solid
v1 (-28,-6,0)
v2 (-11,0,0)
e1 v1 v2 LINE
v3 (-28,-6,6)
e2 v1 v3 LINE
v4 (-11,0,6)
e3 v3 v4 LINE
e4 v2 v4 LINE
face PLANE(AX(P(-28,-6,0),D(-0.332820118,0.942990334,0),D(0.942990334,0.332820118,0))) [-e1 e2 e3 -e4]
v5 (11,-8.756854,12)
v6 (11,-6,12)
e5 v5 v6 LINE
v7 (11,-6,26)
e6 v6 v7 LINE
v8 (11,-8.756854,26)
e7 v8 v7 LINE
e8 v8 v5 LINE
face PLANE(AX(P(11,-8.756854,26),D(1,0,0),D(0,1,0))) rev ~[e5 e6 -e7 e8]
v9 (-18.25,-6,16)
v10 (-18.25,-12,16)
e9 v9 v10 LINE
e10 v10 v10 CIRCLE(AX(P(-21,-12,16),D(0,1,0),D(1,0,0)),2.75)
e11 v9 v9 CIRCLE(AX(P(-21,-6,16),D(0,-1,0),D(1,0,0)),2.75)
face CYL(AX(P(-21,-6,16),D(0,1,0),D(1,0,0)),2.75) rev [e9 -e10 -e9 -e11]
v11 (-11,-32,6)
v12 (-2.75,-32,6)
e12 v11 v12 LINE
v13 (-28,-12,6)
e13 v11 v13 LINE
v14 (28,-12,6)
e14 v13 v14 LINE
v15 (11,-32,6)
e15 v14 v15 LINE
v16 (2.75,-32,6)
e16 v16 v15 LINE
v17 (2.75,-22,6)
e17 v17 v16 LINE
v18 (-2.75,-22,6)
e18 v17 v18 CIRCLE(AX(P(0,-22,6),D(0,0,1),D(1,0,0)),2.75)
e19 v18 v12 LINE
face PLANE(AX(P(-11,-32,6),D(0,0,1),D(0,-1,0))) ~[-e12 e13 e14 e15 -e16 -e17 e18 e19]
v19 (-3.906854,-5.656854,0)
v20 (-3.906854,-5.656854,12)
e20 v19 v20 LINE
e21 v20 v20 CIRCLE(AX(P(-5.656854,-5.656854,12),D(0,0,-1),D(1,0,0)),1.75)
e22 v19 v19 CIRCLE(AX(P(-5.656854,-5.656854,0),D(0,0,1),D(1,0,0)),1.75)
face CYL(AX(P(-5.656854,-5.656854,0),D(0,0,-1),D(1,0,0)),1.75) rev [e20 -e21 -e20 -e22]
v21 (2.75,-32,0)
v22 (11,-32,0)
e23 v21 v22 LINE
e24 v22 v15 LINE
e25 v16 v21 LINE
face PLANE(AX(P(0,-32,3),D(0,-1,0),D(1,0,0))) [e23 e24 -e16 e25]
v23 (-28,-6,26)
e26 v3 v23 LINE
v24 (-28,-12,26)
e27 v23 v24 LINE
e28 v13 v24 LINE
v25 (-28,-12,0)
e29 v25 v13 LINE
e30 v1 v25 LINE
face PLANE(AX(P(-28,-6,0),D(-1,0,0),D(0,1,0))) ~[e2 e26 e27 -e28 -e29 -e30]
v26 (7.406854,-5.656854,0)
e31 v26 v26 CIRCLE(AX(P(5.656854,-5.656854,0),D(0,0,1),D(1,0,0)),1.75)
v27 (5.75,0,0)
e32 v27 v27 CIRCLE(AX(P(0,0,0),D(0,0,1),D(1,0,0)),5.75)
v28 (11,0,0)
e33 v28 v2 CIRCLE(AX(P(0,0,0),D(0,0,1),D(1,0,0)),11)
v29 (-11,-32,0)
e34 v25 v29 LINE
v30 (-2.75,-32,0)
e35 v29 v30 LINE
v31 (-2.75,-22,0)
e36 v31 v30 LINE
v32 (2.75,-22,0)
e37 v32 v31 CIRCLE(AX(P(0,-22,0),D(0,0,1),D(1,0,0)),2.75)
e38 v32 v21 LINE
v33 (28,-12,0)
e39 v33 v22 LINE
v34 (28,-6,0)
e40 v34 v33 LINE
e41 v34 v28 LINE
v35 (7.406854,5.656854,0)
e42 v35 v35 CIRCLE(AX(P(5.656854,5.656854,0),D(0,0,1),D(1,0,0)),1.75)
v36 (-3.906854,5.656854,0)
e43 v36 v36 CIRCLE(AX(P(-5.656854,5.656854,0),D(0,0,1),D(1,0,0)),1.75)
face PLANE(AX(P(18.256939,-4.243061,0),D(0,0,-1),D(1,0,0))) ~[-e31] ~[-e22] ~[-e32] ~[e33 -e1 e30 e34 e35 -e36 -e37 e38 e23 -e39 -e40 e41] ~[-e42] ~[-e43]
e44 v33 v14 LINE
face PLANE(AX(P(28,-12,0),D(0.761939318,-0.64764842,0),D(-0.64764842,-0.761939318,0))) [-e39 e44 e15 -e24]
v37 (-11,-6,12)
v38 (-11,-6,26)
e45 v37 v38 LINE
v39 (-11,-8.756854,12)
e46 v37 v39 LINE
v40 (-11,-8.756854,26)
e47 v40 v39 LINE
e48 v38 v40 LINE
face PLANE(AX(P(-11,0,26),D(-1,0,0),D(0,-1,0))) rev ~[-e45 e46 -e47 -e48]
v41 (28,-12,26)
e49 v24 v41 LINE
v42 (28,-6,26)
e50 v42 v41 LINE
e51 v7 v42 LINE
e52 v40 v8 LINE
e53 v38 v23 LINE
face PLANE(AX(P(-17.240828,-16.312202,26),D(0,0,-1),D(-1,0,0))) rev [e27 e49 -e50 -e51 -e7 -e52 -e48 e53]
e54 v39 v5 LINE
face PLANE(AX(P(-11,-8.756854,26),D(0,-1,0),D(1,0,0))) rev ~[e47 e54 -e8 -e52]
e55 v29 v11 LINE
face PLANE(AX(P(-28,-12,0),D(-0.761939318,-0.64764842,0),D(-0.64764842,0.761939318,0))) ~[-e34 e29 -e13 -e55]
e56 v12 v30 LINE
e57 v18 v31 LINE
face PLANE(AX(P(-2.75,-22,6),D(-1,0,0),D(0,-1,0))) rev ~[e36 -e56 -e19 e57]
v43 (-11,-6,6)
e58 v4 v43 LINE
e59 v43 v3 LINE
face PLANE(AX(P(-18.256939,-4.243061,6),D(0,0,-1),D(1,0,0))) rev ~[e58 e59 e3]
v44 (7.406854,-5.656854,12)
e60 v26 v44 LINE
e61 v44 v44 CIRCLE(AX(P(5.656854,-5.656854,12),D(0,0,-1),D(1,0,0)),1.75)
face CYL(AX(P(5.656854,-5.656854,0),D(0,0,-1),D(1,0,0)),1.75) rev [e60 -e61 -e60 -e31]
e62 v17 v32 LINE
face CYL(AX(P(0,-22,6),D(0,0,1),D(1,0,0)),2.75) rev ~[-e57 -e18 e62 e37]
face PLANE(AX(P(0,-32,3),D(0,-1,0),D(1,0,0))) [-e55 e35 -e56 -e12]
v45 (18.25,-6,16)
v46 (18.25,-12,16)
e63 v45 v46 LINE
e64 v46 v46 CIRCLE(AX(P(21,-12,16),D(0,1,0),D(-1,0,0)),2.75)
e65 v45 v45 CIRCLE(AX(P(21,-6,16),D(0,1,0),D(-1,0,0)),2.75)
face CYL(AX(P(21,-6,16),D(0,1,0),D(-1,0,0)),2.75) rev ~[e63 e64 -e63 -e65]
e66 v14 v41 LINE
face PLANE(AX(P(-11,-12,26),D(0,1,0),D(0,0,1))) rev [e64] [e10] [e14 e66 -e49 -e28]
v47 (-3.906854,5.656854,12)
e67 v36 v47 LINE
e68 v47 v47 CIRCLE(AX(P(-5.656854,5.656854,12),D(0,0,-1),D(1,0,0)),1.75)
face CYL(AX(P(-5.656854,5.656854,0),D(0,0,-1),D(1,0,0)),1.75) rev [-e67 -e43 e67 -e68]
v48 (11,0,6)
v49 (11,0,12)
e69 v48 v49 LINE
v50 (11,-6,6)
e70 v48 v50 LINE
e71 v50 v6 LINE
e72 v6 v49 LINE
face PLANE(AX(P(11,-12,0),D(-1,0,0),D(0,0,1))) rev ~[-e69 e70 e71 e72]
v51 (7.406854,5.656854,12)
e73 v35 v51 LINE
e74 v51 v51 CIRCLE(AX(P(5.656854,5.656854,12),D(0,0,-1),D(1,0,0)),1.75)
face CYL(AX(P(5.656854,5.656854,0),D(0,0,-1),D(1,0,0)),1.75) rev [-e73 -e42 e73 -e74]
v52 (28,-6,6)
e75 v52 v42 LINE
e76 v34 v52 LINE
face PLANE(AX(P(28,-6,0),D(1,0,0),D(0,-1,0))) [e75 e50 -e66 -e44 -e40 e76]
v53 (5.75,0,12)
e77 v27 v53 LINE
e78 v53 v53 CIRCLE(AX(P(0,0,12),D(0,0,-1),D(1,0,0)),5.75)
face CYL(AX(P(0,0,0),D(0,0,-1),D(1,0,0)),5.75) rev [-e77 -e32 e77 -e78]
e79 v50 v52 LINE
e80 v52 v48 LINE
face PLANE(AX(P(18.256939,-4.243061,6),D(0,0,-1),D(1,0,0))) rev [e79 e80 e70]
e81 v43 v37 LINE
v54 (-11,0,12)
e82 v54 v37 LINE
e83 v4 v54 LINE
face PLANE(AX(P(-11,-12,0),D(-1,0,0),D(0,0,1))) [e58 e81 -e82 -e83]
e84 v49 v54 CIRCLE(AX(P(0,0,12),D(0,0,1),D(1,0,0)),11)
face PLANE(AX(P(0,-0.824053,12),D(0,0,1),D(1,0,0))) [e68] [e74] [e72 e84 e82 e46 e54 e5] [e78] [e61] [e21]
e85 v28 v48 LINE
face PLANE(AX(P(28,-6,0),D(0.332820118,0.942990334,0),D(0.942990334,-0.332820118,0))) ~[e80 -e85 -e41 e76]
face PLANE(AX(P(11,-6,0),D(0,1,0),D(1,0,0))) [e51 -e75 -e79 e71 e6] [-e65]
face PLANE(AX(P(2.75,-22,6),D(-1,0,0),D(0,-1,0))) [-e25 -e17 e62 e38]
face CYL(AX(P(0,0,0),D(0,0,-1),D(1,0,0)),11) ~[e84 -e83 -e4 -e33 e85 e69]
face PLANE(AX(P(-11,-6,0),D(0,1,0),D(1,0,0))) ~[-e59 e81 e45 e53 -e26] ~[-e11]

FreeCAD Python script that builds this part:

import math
import FreeCAD as App
import Part
import Sketcher
from FreeCAD import Vector

doc = App.newDocument("Part")
params = doc.addObject("Spreadsheet::Sheet", "Params")
for row, (alias, value) in enumerate([
    ("sketch1_radius", "11 mm"),
    ("sketch1_diameter", "3.5 mm"),
    ("sketch1_diameter2", "11.5 mm"),
    ("sketch1_height", "12 mm"),
    ("pad1_length", "26 mm"),
    ("sketch2_width", "22 mm"),
    ("sketch2_height", "6 mm"),
    ("pad2_length", "20 mm"),
    ("sketch3_height", "10 mm"),
    ("sketch3_radius", "2.75 mm"),
    ("sketch4_width", "17 mm"),
    ("sketch4_height", "26 mm"),
    ("sketch4_height2", "6 mm"),
    ("pad3_length", "26 mm"),
    ("sketch5_width", "20 mm"),
    ("sketch6_diameter", "5.5 mm"),
    ("sketch7_radius", "11 mm"),
    ("pocket4_length", "14 mm"),
    ("sketch8_width", "17 mm"),
    ("sketch8_height", "6 mm"),
    ("pad4_length", "6 mm"),
], start=1):
    params.set(f"A{row}", alias)
    params.set(f"B{row}", "=" + value)
    params.setAlias(f"B{row}", alias)

body = doc.addObject("PartDesign::Body", "Body")

# Sketch on XY plane
sketch1 = doc.addObject("Sketcher::SketchObject", "Sketch")
body.addObject(sketch1)
sketch1.AttachmentSupport = (doc.XY_Plane, [""])
sketch1.MapMode = "FlatFace"
sketch1.addGeometry(Part.ArcOfCircle(Part.Circle(Vector(0, 0, 0), Vector(0, 0, 1), 11), math.radians(0), math.radians(180)), False)
sketch1.addGeometry(Part.LineSegment(Vector(-11, 0, 0), Vector(-11, -12, 0)), False)
sketch1.addGeometry(Part.LineSegment(Vector(-11, -12, 0), Vector(11, -12, 0)), False)
sketch1.addGeometry(Part.LineSegment(Vector(11, -12, 0), Vector(11, 0, 0)), False)
sketch1.addGeometry(Part.Circle(Vector(-5.656854, -5.656854, 0), Vector(0, 0, 1), 1.75), False)
sketch1.addGeometry(Part.Circle(Vector(5.656854, -5.656854, 0), Vector(0, 0, 1), 1.75), False)
sketch1.addGeometry(Part.Circle(Vector(0, 0, 0), Vector(0, 0, 1), 5.75), False)
sketch1.addGeometry(Part.Circle(Vector(-5.656854, 5.656854, 0), Vector(0, 0, 1), 1.75), False)
sketch1.addGeometry(Part.Circle(Vector(5.656854, 5.656854, 0), Vector(0, 0, 1), 1.75), False)
sketch1.addConstraint(Sketcher.Constraint("Tangent", 0, 2, 1, 1))
sketch1.addConstraint(Sketcher.Constraint("Coincident", 1, 2, 2, 1))
sketch1.addConstraint(Sketcher.Constraint("Coincident", 2, 2, 3, 1))
sketch1.addConstraint(Sketcher.Constraint("Tangent", 3, 2, 0, 1))
sketch1.addConstraint(Sketcher.Constraint("Vertical", 1))
sketch1.addConstraint(Sketcher.Constraint("Horizontal", 2))
sketch1.addConstraint(Sketcher.Constraint("Vertical", 3))
sketch1.addConstraint(Sketcher.Constraint("Coincident", 0, 3, -1, 1))
sketch1.addConstraint(Sketcher.Constraint("Coincident", 6, 3, -1, 1))
sketch1.addConstraint(Sketcher.Constraint("Equal", 4, 5))
sketch1.addConstraint(Sketcher.Constraint("Equal", 5, 7))
sketch1.addConstraint(Sketcher.Constraint("Equal", 7, 8))
sketch1.addConstraint(Sketcher.Constraint("Symmetric", 5, 3, 7, 3, -1, 1))
sketch1.addConstraint(Sketcher.Constraint("Symmetric", 4, 3, 8, 3, -1, 1))
sketch1.addConstraint(Sketcher.Constraint("Symmetric", 4, 3, 5, 3, -2))
sketch1.addConstraint(Sketcher.Constraint("Radius", 0, 11.0))
sketch1.addConstraint(Sketcher.Constraint("Diameter", 4, 3.5))
sketch1.addConstraint(Sketcher.Constraint("Diameter", 6, 11.5))
sketch1.addConstraint(Sketcher.Constraint("DistanceY", 1, 2, 1, 1, 12.0))
sketch1.addConstraint(Sketcher.Constraint("DistanceX", 4, 3, -1, 1, 5.656854))
sketch1.addConstraint(Sketcher.Constraint("DistanceY", 4, 3, -1, 1, 5.656854))
sketch1.setExpression("Constraints[15]", "Params.sketch1_radius")
sketch1.setExpression("Constraints[16]", "Params.sketch1_diameter")
sketch1.setExpression("Constraints[17]", "Params.sketch1_diameter2")
sketch1.setExpression("Constraints[18]", "Params.sketch1_height")
pad1 = doc.addObject("PartDesign::Pad", "Pad")
body.addObject(pad1)
pad1.Profile = sketch1
pad1.setExpression("Length", "Params.pad1_length")

# Sketch on XZ plane
sketch2 = doc.addObject("Sketcher::SketchObject", "Sketch001")
body.addObject(sketch2)
sketch2.AttachmentSupport = (doc.XZ_Plane, [""])
sketch2.MapMode = "FlatFace"
sketch2.AttachmentOffset = App.Placement(Vector(0, 0, 12), App.Rotation())
sketch2.addGeometry(Part.LineSegment(Vector(-11, 6, 0), Vector(-11, 0, 0)), False)
sketch2.addGeometry(Part.LineSegment(Vector(-11, 0, 0), Vector(11, 0, 0)), False)
sketch2.addGeometry(Part.LineSegment(Vector(11, 0, 0), Vector(11, 6, 0)), False)
sketch2.addGeometry(Part.LineSegment(Vector(11, 6, 0), Vector(-11, 6, 0)), False)
sketch2.addConstraint(Sketcher.Constraint("Coincident", 0, 2, 1, 1))
sketch2.addConstraint(Sketcher.Constraint("Coincident", 1, 2, 2, 1))
sketch2.addConstraint(Sketcher.Constraint("Coincident", 2, 2, 3, 1))
sketch2.addConstraint(Sketcher.Constraint("Coincident", 3, 2, 0, 1))
sketch2.addConstraint(Sketcher.Constraint("Vertical", 0))
sketch2.addConstraint(Sketcher.Constraint("Horizontal", 1))
sketch2.addConstraint(Sketcher.Constraint("Vertical", 2))
sketch2.addConstraint(Sketcher.Constraint("Horizontal", 3))
sketch2.addConstraint(Sketcher.Constraint("Symmetric", 0, 2, 1, 2, -1, 1))
sketch2.addConstraint(Sketcher.Constraint("DistanceX", 1, 1, 1, 2, 22.0))
sketch2.addConstraint(Sketcher.Constraint("DistanceY", 0, 2, 0, 1, 6.0))
sketch2.setExpression("Constraints[9]", "Params.sketch2_width")
sketch2.setExpression("Constraints[10]", "Params.sketch2_height")
pad2 = doc.addObject("PartDesign::Pad", "Pad001")
body.addObject(pad2)
pad2.Profile = sketch2
pad2.setExpression("Length", "Params.pad2_length")

# Sketch on XY plane
sketch3 = doc.addObject("Sketcher::SketchObject", "Sketch002")
body.addObject(sketch3)
sketch3.AttachmentSupport = (doc.XY_Plane, [""])
sketch3.MapMode = "FlatFace"
sketch3.AttachmentOffset = App.Placement(Vector(0, 0, 6), App.Rotation())
sketch3.addGeometry(Part.ArcOfCircle(Part.Circle(Vector(0, -22, 0), Vector(0, 0, 1), 2.75), math.radians(0), math.radians(180)), False)
sketch3.addGeometry(Part.LineSegment(Vector(-2.75, -22, 0), Vector(-2.75, -32, 0)), False)
sketch3.addGeometry(Part.LineSegment(Vector(-2.75, -32, 0), Vector(2.75, -32, 0)), False)
sketch3.addGeometry(Part.LineSegment(Vector(2.75, -32, 0), Vector(2.75, -22, 0)), False)
sketch3.addConstraint(Sketcher.Constraint("Tangent", 0, 2, 1, 1))
sketch3.addConstraint(Sketcher.Constraint("Coincident", 1, 2, 2, 1))
sketch3.addConstraint(Sketcher.Constraint("Coincident", 2, 2, 3, 1))
sketch3.addConstraint(Sketcher.Constraint("Tangent", 3, 2, 0, 1))
sketch3.addConstraint(Sketcher.Constraint("Vertical", 1))
sketch3.addConstraint(Sketcher.Constraint("Horizontal", 2))
sketch3.addConstraint(Sketcher.Constraint("Vertical", 3))
sketch3.addConstraint(Sketcher.Constraint("PointOnObject", 0, 3, -2))
sketch3.addConstraint(Sketcher.Constraint("DistanceY", 1, 2, 1, 1, 10.0))
sketch3.addConstraint(Sketcher.Constraint("Radius", 0, 2.75))
sketch3.addConstraint(Sketcher.Constraint("DistanceY", 0, 3, -1, 1, 22.0))
sketch3.setExpression("Constraints[8]", "Params.sketch3_height")
sketch3.setExpression("Constraints[9]", "Params.sketch3_radius")
pocket1 = doc.addObject("PartDesign::Pocket", "Pocket")
body.addObject(pocket1)
pocket1.Profile = sketch3
pocket1.Type = "ThroughAll"

# Sketch on XY plane
sketch4 = doc.addObject("Sketcher::SketchObject", "Sketch003")
body.addObject(sketch4)
sketch4.AttachmentSupport = (doc.XY_Plane, [""])
sketch4.MapMode = "FlatFace"
sketch4.addGeometry(Part.LineSegment(Vector(28, -6, 0), Vector(11, -6, 0)), False)
sketch4.addGeometry(Part.LineSegment(Vector(11, -6, 0), Vector(11, -32, 0)), False)
sketch4.addGeometry(Part.LineSegment(Vector(11, -32, 0), Vector(28, -12, 0)), False)
sketch4.addGeometry(Part.LineSegment(Vector(28, -12, 0), Vector(28, -6, 0)), False)
sketch4.addConstraint(Sketcher.Constraint("Coincident", 0, 2, 1, 1))
sketch4.addConstraint(Sketcher.Constraint("Coincident", 1, 2, 2, 1))
sketch4.addConstraint(Sketcher.Constraint("Coincident", 2, 2, 3, 1))
sketch4.addConstraint(Sketcher.Constraint("Coincident", 3, 2, 0, 1))
sketch4.addConstraint(Sketcher.Constraint("Horizontal", 0))
sketch4.addConstraint(Sketcher.Constraint("Vertical", 1))
sketch4.addConstraint(Sketcher.Constraint("Vertical", 3))
sketch4.addConstraint(Sketcher.Constraint("DistanceX", 0, 2, 0, 1, 17.0))
sketch4.addConstraint(Sketcher.Constraint("DistanceY", 1, 2, 1, 1, 26.0))
sketch4.addConstraint(Sketcher.Constraint("DistanceY", 3, 1, 3, 2, 6.0))
sketch4.addConstraint(Sketcher.Constraint("DistanceX", -1, 1, 0, 2, 11.0))
sketch4.addConstraint(Sketcher.Constraint("DistanceY", 0, 2, -1, 1, 6.0))
sketch4.setExpression("Constraints[7]", "Params.sketch4_width")
sketch4.setExpression("Constraints[8]", "Params.sketch4_height")
sketch4.setExpression("Constraints[9]", "Params.sketch4_height2")
pad3 = doc.addObject("PartDesign::Pad", "Pad002")
body.addObject(pad3)
pad3.Profile = sketch4
pad3.setExpression("Length", "Params.pad3_length")

# Sketch on YZ plane
sketch5 = doc.addObject("Sketcher::SketchObject", "Sketch004")
body.addObject(sketch5)
sketch5.AttachmentSupport = (doc.YZ_Plane, [""])
sketch5.MapMode = "FlatFace"
sketch5.AttachmentOffset = App.Placement(Vector(0, 0, 11), App.Rotation())
sketch5.addGeometry(Part.LineSegment(Vector(-32, 6, 0), Vector(-32, 26, 0)), False)
sketch5.addGeometry(Part.LineSegment(Vector(-32, 26, 0), Vector(-12, 26, 0)), False)
sketch5.addGeometry(Part.LineSegment(Vector(-12, 26, 0), Vector(-12, 6, 0)), False)
sketch5.addGeometry(Part.LineSegment(Vector(-12, 6, 0), Vector(-32, 6, 0)), False)
sketch5.addConstraint(Sketcher.Constraint("Coincident", 0, 2, 1, 1))
sketch5.addConstraint(Sketcher.Constraint("Coincident", 1, 2, 2, 1))
sketch5.addConstraint(Sketcher.Constraint("Coincident", 2, 2, 3, 1))
sketch5.addConstraint(Sketcher.Constraint("Coincident", 3, 2, 0, 1))
sketch5.addConstraint(Sketcher.Constraint("Vertical", 0))
sketch5.addConstraint(Sketcher.Constraint("Horizontal", 1))
sketch5.addConstraint(Sketcher.Constraint("Vertical", 2))
sketch5.addConstraint(Sketcher.Constraint("Horizontal", 3))
sketch5.addConstraint(Sketcher.Constraint("Equal", 3, 0))
sketch5.addConstraint(Sketcher.Constraint("DistanceX", 1, 1, 1, 2, 20.0))
sketch5.addConstraint(Sketcher.Constraint("DistanceX", 0, 2, -1, 1, 32.0))
sketch5.addConstraint(Sketcher.Constraint("DistanceY", -1, 1, 0, 2, 26.0))
sketch5.setExpression("Constraints[9]", "Params.sketch5_width")
pocket2 = doc.addObject("PartDesign::Pocket", "Pocket001")
body.addObject(pocket2)
pocket2.Profile = sketch5
pocket2.Type = "ThroughAll"
pocket2.Reversed = True

# Sketch on XZ plane
sketch6 = doc.addObject("Sketcher::SketchObject", "Sketch005")
body.addObject(sketch6)
sketch6.AttachmentSupport = (doc.XZ_Plane, [""])
sketch6.MapMode = "FlatFace"
sketch6.AttachmentOffset = App.Placement(Vector(0, 0, 6), App.Rotation())
sketch6.addGeometry(Part.Circle(Vector(21, 16, 0), Vector(0, 0, 1), 2.75), False)
sketch6.addConstraint(Sketcher.Constraint("Diameter", 0, 5.5))
sketch6.addConstraint(Sketcher.Constraint("DistanceX", -1, 1, 0, 3, 21.0))
sketch6.addConstraint(Sketcher.Constraint("DistanceY", -1, 1, 0, 3, 16.0))
sketch6.setExpression("Constraints[0]", "Params.sketch6_diameter")
pocket3 = doc.addObject("PartDesign::Pocket", "Pocket002")
body.addObject(pocket3)
pocket3.Profile = sketch6
pocket3.Type = "ThroughAll"
pocket3.Reversed = True
doc.recompute()

mirrored = doc.addObject("PartDesign::Mirrored", "Mirrored")
body.addObject(mirrored)
mirrored.Originals = [pad3, pocket2, pocket3]
mirrored.MirrorPlane = (doc.YZ_Plane, [""])
body.Tip = mirrored

# Sketch on XY plane
sketch7 = doc.addObject("Sketcher::SketchObject", "Sketch006")
body.addObject(sketch7)
sketch7.AttachmentSupport = (doc.XY_Plane, [""])
sketch7.MapMode = "FlatFace"
sketch7.AttachmentOffset = App.Placement(Vector(0, 0, 26), App.Rotation())
sketch7.addGeometry(Part.LineSegment(Vector(-11, 0, 0), Vector(-11, -8.756854, 0)), False)
sketch7.addGeometry(Part.LineSegment(Vector(-11, -8.756854, 0), Vector(11, -8.756854, 0)), False)
sketch7.addGeometry(Part.LineSegment(Vector(11, -8.756854, 0), Vector(11, 0, 0)), False)
sketch7.addGeometry(Part.ArcOfCircle(Part.Circle(Vector(0, 0, 0), Vector(0, 0, 1), 11), math.radians(0), math.radians(180)), False)
sketch7.addConstraint(Sketcher.Constraint("Coincident", 0, 2, 1, 1))
sketch7.addConstraint(Sketcher.Constraint("Coincident", 1, 2, 2, 1))
sketch7.addConstraint(Sketcher.Constraint("Tangent", 2, 2, 3, 1))
sketch7.addConstraint(Sketcher.Constraint("Tangent", 3, 2, 0, 1))
sketch7.addConstraint(Sketcher.Constraint("Vertical", 0))
sketch7.addConstraint(Sketcher.Constraint("Horizontal", 1))
sketch7.addConstraint(Sketcher.Constraint("Vertical", 2))
sketch7.addConstraint(Sketcher.Constraint("Coincident", 3, 3, -1, 1))
sketch7.addConstraint(Sketcher.Constraint("Radius", 3, 11.0))
sketch7.addConstraint(Sketcher.Constraint("DistanceY", 0, 2, 0, 1, 8.756854))
sketch7.setExpression("Constraints[8]", "Params.sketch7_radius")
pocket4 = doc.addObject("PartDesign::Pocket", "Pocket003")
body.addObject(pocket4)
pocket4.Profile = sketch7
pocket4.setExpression("Length", "Params.pocket4_length")

# Sketch on XY plane
sketch8 = doc.addObject("Sketcher::SketchObject", "Sketch007")
body.addObject(sketch8)
sketch8.AttachmentSupport = (doc.XY_Plane, [""])
sketch8.MapMode = "FlatFace"
sketch8.addGeometry(Part.LineSegment(Vector(-28, -6, 0), Vector(-11, 0, 0)), False)
sketch8.addGeometry(Part.LineSegment(Vector(-11, 0, 0), Vector(-11, -6, 0)), False)
sketch8.addGeometry(Part.LineSegment(Vector(-11, -6, 0), Vector(-28, -6, 0)), False)
sketch8.addConstraint(Sketcher.Constraint("Coincident", 0, 2, 1, 1))
sketch8.addConstraint(Sketcher.Constraint("Coincident", 1, 2, 2, 1))
sketch8.addConstraint(Sketcher.Constraint("Coincident", 2, 2, 0, 1))
sketch8.addConstraint(Sketcher.Constraint("Vertical", 1))
sketch8.addConstraint(Sketcher.Constraint("Horizontal", 2))
sketch8.addConstraint(Sketcher.Constraint("PointOnObject", 0, 2, -1))
sketch8.addConstraint(Sketcher.Constraint("DistanceX", 2, 2, 2, 1, 17.0))
sketch8.addConstraint(Sketcher.Constraint("DistanceY", 1, 2, 1, 1, 6.0))
sketch8.addConstraint(Sketcher.Constraint("DistanceX", 0, 2, -1, 1, 11.0))
sketch8.setExpression("Constraints[6]", "Params.sketch8_width")
sketch8.setExpression("Constraints[7]", "Params.sketch8_height")
pad4 = doc.addObject("PartDesign::Pad", "Pad003")
body.addObject(pad4)
pad4.Profile = sketch8
pad4.setExpression("Length", "Params.pad4_length")
doc.recompute()

mirrored2 = doc.addObject("PartDesign::Mirrored", "Mirrored001")
body.addObject(mirrored2)
mirrored2.Originals = [pad4]
mirrored2.MirrorPlane = (doc.YZ_Plane, [""])
body.Tip = mirrored2

doc.recompute()
